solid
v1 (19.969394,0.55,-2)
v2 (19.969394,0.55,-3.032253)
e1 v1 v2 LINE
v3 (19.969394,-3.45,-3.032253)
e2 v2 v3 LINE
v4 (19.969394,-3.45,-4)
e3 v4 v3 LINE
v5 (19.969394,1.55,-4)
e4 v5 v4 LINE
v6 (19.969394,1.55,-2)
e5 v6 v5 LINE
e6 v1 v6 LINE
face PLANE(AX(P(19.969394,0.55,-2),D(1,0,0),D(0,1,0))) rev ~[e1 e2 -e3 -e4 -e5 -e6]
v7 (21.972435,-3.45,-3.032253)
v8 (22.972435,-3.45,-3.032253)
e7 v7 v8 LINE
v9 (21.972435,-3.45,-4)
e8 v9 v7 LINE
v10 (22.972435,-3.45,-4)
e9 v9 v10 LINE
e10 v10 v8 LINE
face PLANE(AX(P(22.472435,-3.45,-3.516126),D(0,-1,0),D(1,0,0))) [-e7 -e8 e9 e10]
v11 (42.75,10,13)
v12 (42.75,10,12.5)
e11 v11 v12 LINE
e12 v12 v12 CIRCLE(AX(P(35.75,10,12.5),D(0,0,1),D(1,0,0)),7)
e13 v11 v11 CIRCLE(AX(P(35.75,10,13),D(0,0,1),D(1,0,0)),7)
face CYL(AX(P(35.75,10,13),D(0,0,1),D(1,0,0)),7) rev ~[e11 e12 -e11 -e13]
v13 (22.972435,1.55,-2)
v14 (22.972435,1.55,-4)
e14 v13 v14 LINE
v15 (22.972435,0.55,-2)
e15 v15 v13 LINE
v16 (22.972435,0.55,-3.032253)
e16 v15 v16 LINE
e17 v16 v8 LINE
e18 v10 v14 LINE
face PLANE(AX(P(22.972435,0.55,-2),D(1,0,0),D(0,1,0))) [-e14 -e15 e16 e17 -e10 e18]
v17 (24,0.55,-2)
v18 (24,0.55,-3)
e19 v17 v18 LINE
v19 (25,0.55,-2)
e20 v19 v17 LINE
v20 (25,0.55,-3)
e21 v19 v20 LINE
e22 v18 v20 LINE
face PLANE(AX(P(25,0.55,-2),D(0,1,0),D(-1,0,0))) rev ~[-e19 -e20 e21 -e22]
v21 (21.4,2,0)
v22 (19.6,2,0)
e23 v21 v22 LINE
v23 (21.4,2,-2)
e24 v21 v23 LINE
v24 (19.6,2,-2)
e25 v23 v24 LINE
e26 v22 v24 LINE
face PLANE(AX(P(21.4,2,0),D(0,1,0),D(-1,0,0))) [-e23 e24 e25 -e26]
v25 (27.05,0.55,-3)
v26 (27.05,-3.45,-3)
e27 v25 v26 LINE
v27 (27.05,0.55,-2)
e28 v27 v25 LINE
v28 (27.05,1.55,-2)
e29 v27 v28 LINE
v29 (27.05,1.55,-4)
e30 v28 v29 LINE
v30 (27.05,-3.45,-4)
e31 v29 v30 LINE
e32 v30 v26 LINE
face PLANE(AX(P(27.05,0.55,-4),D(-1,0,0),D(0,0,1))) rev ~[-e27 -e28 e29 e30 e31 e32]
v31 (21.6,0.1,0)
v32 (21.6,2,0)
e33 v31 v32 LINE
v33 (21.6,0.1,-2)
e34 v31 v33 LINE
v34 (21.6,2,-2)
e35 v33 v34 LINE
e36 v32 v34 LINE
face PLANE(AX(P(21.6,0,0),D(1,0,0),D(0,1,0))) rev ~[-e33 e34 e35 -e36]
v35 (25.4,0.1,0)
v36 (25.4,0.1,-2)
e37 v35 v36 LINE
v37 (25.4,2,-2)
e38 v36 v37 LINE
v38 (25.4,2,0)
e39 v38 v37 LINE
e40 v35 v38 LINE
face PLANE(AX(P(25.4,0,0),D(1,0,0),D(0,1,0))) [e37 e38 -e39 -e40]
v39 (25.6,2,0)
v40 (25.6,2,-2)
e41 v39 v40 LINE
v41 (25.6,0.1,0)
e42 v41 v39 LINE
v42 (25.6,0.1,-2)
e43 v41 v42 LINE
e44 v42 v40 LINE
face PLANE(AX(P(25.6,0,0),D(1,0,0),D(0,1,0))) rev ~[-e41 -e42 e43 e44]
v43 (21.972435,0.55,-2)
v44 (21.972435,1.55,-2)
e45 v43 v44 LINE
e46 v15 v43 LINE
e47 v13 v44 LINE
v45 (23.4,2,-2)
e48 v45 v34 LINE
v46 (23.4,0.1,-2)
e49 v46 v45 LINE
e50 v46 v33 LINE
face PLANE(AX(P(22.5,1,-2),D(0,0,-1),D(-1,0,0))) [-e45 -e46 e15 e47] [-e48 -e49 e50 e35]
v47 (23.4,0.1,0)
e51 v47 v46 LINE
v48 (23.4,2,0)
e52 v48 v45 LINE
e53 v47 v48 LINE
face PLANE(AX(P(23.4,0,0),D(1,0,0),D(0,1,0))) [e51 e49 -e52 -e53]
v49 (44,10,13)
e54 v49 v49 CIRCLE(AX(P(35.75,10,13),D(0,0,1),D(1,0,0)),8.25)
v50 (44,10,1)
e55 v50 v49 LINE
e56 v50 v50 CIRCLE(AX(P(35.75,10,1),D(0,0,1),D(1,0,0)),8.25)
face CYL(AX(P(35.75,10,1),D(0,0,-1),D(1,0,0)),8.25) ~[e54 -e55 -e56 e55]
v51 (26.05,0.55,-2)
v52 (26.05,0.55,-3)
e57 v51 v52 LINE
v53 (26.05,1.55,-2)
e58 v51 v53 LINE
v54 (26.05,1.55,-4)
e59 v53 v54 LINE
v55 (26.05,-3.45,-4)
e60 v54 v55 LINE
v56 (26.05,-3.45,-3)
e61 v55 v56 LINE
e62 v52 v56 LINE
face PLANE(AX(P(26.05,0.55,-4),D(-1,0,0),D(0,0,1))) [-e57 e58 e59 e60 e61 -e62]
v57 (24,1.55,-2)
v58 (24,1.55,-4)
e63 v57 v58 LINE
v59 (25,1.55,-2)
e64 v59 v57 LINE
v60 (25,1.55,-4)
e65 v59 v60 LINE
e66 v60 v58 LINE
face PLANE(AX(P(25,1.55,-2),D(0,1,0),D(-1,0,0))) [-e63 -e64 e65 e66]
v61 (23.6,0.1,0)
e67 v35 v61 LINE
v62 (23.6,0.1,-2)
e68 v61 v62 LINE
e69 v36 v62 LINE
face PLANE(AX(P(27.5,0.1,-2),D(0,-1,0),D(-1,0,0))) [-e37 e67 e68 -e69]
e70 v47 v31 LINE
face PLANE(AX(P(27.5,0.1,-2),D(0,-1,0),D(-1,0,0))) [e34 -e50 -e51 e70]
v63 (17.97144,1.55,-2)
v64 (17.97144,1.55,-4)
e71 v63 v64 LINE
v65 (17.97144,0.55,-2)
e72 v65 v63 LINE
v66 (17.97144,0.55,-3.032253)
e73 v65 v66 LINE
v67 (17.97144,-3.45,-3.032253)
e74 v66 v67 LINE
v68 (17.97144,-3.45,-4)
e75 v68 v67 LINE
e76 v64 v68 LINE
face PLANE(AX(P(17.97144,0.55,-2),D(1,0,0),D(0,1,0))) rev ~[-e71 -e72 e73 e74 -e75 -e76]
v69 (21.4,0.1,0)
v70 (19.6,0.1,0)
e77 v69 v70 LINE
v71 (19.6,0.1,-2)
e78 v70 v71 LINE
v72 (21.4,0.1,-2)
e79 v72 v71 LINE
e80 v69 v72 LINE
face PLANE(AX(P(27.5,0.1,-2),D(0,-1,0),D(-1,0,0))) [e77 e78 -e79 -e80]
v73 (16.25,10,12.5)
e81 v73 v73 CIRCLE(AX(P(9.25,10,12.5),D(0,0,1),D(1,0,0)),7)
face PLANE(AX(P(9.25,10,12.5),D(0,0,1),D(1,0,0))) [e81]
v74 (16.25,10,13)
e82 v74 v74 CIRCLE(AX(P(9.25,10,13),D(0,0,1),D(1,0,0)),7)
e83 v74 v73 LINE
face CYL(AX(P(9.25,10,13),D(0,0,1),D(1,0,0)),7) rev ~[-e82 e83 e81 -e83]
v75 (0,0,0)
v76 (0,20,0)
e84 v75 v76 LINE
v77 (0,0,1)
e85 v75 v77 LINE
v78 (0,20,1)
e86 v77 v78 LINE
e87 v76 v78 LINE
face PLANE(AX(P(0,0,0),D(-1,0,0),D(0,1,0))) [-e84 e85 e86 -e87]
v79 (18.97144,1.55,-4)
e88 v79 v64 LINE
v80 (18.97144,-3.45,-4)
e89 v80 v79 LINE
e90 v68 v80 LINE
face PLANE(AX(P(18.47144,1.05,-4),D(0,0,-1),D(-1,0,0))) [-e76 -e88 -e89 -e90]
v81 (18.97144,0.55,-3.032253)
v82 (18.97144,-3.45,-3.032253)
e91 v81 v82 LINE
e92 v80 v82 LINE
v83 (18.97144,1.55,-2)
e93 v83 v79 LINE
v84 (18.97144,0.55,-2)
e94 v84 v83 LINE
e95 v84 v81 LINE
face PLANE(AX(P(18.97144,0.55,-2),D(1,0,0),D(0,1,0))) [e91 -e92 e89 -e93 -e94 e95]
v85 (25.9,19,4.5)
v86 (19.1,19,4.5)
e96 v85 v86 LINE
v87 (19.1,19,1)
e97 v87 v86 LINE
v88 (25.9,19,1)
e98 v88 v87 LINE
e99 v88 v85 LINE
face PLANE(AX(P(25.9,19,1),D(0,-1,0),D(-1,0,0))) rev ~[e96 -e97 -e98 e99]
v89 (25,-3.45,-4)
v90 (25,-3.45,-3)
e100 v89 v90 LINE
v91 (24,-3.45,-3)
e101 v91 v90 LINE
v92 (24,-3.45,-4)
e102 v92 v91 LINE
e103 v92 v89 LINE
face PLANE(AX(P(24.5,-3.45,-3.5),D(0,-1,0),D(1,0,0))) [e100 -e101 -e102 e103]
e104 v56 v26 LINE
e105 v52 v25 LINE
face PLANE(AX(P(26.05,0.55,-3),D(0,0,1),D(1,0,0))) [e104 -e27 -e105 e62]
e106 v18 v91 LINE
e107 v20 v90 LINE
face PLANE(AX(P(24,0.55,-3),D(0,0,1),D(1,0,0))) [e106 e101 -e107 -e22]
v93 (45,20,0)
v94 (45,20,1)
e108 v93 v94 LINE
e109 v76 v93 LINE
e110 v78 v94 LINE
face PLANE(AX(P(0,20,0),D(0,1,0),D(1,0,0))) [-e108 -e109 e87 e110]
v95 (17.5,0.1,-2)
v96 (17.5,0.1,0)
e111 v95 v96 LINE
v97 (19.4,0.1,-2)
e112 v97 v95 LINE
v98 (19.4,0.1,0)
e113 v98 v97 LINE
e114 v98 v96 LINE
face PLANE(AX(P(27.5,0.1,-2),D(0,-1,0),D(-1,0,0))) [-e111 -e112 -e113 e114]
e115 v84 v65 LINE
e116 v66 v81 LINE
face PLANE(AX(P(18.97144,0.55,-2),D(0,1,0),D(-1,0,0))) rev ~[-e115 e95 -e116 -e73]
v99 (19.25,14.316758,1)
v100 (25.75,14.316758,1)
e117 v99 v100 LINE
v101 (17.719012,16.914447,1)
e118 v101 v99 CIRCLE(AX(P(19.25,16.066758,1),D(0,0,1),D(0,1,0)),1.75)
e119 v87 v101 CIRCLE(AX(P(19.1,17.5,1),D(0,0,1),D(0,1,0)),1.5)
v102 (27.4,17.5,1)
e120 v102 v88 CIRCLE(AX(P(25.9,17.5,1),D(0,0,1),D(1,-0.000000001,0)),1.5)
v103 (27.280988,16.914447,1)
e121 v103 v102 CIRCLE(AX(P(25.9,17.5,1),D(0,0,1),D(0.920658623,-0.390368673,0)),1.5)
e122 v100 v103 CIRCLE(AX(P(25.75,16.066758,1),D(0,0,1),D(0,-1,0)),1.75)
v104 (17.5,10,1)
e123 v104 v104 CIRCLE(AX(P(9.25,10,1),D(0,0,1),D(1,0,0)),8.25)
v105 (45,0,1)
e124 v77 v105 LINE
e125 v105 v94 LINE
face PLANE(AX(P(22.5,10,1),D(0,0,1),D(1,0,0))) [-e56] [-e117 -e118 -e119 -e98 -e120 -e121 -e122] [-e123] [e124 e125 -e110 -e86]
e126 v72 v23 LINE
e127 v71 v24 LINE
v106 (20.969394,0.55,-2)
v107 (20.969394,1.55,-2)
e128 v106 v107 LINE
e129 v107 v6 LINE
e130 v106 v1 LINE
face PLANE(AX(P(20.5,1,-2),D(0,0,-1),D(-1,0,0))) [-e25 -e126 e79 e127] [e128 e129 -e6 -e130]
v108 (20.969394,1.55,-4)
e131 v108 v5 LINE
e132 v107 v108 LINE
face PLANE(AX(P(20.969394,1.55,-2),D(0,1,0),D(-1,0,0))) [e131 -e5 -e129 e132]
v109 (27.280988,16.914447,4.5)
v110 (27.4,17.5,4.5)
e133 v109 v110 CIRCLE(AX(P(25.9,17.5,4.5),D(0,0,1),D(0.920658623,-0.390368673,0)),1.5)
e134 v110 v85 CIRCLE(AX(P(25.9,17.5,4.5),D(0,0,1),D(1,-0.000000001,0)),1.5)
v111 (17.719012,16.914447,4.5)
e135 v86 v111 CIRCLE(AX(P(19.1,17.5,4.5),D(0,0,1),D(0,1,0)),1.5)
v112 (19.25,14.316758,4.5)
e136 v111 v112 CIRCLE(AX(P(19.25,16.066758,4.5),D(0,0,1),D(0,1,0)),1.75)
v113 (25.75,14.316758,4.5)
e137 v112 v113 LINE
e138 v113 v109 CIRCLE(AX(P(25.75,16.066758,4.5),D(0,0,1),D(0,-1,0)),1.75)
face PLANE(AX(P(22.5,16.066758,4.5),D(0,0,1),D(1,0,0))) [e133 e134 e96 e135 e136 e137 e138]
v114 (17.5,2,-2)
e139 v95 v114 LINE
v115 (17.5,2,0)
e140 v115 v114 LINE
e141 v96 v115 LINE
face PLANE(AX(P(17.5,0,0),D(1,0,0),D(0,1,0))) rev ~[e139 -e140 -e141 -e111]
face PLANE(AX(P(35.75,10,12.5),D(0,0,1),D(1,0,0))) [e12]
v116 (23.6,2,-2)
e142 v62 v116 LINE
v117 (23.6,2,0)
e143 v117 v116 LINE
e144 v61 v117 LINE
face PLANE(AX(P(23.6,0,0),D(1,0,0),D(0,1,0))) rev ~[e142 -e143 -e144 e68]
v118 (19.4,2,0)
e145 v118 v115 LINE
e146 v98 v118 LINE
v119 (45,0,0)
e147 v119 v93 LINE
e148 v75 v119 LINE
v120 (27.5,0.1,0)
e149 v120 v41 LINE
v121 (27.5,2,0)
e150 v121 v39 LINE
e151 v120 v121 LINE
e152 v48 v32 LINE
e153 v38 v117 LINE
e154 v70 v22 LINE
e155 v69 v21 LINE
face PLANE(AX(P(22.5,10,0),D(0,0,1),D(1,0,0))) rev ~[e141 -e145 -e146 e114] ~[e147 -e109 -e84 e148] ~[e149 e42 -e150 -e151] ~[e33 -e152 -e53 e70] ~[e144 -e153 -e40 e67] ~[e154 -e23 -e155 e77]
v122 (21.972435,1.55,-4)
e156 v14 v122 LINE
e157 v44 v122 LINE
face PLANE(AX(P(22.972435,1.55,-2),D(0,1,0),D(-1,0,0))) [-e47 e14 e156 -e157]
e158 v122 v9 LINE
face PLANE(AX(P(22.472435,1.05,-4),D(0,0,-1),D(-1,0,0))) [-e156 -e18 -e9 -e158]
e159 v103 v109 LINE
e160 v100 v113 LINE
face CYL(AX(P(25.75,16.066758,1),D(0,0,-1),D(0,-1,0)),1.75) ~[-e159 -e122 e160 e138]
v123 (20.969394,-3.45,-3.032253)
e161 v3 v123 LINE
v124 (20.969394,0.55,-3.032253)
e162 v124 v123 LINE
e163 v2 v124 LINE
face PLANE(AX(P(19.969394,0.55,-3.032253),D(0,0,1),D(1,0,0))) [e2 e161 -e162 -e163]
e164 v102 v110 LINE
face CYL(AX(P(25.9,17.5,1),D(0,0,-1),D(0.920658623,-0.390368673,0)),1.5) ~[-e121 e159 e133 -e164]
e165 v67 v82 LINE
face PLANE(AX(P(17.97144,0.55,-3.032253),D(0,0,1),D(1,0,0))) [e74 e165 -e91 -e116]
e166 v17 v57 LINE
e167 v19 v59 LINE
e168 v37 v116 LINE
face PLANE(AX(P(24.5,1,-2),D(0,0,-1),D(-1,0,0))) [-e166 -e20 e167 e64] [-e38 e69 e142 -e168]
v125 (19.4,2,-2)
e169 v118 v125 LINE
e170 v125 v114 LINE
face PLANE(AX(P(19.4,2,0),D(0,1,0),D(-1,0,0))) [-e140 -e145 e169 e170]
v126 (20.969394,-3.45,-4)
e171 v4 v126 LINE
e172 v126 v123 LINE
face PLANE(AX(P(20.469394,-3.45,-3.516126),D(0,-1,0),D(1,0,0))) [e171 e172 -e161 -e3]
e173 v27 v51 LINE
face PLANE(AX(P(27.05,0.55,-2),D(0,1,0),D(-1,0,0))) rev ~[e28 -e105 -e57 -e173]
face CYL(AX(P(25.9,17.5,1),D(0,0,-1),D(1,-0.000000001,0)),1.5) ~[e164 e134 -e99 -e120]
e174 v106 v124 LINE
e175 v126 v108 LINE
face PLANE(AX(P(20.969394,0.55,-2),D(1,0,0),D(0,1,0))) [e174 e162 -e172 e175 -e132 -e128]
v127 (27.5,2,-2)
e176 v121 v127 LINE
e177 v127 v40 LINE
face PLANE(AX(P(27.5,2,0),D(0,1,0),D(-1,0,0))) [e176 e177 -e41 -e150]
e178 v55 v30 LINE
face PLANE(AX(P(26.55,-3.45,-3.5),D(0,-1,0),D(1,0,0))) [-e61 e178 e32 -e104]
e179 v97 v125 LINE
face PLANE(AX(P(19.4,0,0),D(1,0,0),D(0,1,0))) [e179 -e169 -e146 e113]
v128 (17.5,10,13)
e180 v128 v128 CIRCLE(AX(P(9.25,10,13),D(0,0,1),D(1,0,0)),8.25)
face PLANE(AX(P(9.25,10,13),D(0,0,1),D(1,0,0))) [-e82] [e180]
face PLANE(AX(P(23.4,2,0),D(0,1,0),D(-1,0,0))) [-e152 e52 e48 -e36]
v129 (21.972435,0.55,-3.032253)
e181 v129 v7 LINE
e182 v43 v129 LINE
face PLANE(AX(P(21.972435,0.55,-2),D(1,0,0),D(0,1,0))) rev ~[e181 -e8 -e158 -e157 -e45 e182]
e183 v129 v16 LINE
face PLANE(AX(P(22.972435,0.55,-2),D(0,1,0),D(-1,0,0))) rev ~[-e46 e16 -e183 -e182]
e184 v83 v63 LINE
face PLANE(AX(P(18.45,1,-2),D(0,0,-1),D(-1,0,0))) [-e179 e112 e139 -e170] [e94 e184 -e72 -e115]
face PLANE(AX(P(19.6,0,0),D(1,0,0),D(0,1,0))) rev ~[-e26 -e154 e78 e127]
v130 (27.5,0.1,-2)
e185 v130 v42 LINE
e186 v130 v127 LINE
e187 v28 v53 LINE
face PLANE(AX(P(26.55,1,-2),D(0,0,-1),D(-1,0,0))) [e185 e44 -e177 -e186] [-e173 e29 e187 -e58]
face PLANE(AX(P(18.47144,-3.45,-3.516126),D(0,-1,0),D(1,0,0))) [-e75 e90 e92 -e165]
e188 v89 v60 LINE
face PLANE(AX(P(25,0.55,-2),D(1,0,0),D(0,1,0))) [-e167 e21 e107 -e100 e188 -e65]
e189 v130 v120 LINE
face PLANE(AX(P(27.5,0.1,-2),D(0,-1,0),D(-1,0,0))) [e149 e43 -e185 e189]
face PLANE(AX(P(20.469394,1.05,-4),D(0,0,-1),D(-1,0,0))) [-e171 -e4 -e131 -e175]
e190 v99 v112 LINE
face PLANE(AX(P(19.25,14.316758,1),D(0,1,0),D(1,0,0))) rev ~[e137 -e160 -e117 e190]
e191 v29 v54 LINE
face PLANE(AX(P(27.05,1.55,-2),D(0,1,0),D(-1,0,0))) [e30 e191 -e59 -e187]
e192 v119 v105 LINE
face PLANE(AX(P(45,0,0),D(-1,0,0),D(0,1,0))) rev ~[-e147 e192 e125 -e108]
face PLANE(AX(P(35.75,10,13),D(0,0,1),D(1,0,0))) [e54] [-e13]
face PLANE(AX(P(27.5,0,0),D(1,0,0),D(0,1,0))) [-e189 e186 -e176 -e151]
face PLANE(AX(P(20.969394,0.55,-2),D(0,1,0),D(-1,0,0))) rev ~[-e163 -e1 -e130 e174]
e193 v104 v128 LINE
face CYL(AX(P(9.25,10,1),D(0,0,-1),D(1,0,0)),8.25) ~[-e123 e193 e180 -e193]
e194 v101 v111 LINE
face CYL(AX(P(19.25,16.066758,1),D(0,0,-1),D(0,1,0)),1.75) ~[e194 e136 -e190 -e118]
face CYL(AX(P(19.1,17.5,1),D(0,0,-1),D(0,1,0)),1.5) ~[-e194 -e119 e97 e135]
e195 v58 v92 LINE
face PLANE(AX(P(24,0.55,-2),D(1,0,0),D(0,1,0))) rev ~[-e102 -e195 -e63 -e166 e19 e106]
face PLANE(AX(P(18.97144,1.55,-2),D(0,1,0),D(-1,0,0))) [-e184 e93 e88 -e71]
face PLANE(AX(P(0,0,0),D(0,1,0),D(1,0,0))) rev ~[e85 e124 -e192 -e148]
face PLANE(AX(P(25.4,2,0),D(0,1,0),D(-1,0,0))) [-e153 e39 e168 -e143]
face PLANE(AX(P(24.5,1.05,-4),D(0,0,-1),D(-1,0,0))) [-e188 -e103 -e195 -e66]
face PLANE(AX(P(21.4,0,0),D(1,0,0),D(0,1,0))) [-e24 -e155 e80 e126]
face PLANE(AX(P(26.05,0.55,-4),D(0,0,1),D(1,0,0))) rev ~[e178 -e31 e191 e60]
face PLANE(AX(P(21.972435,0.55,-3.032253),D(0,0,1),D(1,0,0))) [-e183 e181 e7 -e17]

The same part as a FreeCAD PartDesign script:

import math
import FreeCAD as App
import Part
import Sketcher
Q = App.Units.Quantity


def add_polygon(sketch, points):
    """Adds a closed chain of lines whose ends are joined by coincident constraints."""
    first, n = sketch.GeometryCount, len(points)
    for a, b in zip(points, points[1:] + points[:1]):
        sketch.addGeometry(Part.LineSegment(App.Vector(*a, 0), App.Vector(*b, 0)), False)
    for i in range(n):
        sketch.addConstraint(Sketcher.Constraint("Coincident", first + i, 2, first + (i + 1) % n, 1))

doc = App.newDocument("Part")
params = doc.addObject("Spreadsheet::Sheet", "Params")
for row, (alias, value) in enumerate([
    ("sketch1_width", "45 mm"),
    ("sketch1_height", "20 mm"),
    ("pad1_length", "1 mm"),
    ("sketch2_diameter", "16.5 mm"),
    ("pad2_length", "12 mm"),
    ("sketch3_diameter", "14 mm"),
    ("pocket1_length", "0.5 mm"),
    ("sketch4_radius", "1.75 mm"),
    ("sketch4_width", "6.5 mm"),
    ("pad3_length", "3.5 mm"),
    ("sketch5_height", "2 mm"),
    ("sketch5_width", "1.9 mm"),
    ("sketch5_width2", "1.8 mm"),
    ("pad4_length", "2 mm"),
    ("sketch6_width", "10 mm"),
    ("sketch6_height", "0.1 mm"),
    ("pocket2_length", "2 mm"),
    ("sketch7_width", "1 mm"),
    ("pad5_length", "2 mm"),
    ("sketch8_width", "1 mm"),
    ("pad6_length", "4 mm"),
    ("sketch9_radius", "1.5 mm"),
    ("sketch9_width", "6.8 mm"),
    ("pad7_length", "3.5 mm"),
], start=1):
    params.set(f"A{row}", alias)
    params.set(f"B{row}", "=" + value)
    params.setAlias(f"B{row}", alias)

body = doc.addObject("PartDesign::Body", "Body")

sketch1 = body.newObject("Sketcher::SketchObject", "Sketch")
sketch1.AttachmentSupport = (doc.getObject("XY_Plane"), [""])
sketch1.MapMode = "FlatFace"
add_polygon(sketch1, [(0, 20), (0, 0), (45, 0), (45, 20)])
sketch1.addConstraint(Sketcher.Constraint("Vertical", 0))
sketch1.addConstraint(Sketcher.Constraint("Horizontal", 1))
sketch1.addConstraint(Sketcher.Constraint("Vertical", 2))
sketch1.addConstraint(Sketcher.Constraint("Horizontal", 3))
sketch1.addConstraint(Sketcher.Constraint("Coincident", 0, 2, -1, 1))
sketch1.addConstraint(Sketcher.Constraint("DistanceX", 1, 1, 1, 2, Q("45 mm")))
sketch1.addConstraint(Sketcher.Constraint("DistanceY", 0, 2, 0, 1, Q("20 mm")))
sketch1.setExpression("Constraints[9]", "Params.sketch1_width")
sketch1.setExpression("Constraints[10]", "Params.sketch1_height")
pad1 = body.newObject("PartDesign::Pad", "Pad")
pad1.Profile = sketch1
pad1.setExpression("Length", "Params.pad1_length")

sketch2 = body.newObject("Sketcher::SketchObject", "Sketch001")
sketch2.AttachmentSupport = (doc.getObject("XY_Plane"), [""])
sketch2.MapMode = "FlatFace"
sketch2.AttachmentOffset = App.Placement(App.Vector(0, 0, 1), App.Rotation())
sketch2.addGeometry(Part.Circle(App.Vector(9.25, 10, 0), App.Vector(0, 0, 1), 8.25), False)
sketch2.addGeometry(Part.Circle(App.Vector(35.75, 10, 0), App.Vector(0, 0, 1), 8.25), False)
sketch2.addConstraint(Sketcher.Constraint("Equal", 0, 1))
sketch2.addConstraint(Sketcher.Constraint("Horizontal", 0, 3, 1, 3))
sketch2.addConstraint(Sketcher.Constraint("Diameter", 0, Q("16.5 mm")))
sketch2.addConstraint(Sketcher.Constraint("DistanceY", -1, 1, 0, 3, Q("10 mm")))
sketch2.addConstraint(Sketcher.Constraint("DistanceX", 0, 3, 1, 3, Q("26.5 mm")))
sketch2.addConstraint(Sketcher.Constraint("DistanceX", -1, 1, 0, 3, Q("9.25 mm")))
sketch2.setExpression("Constraints[2]", "Params.sketch2_diameter")
pad2 = body.newObject("PartDesign::Pad", "Pad001")
pad2.Profile = sketch2
pad2.setExpression("Length", "Params.pad2_length")

sketch3 = body.newObject("Sketcher::SketchObject", "Sketch002")
sketch3.AttachmentSupport = (doc.getObject("XY_Plane"), [""])
sketch3.MapMode = "FlatFace"
sketch3.AttachmentOffset = App.Placement(App.Vector(0, 0, 13), App.Rotation())
sketch3.addGeometry(Part.Circle(App.Vector(9.25, 10, 0), App.Vector(0, 0, 1), 7), False)
sketch3.addGeometry(Part.Circle(App.Vector(35.75, 10, 0), App.Vector(0, 0, 1), 7), False)
sketch3.addConstraint(Sketcher.Constraint("Equal", 0, 1))
sketch3.addConstraint(Sketcher.Constraint("Horizontal", 0, 3, 1, 3))
sketch3.addConstraint(Sketcher.Constraint("Diameter", 0, Q("14 mm")))
sketch3.addConstraint(Sketcher.Constraint("DistanceY", -1, 1, 0, 3, Q("10 mm")))
sketch3.addConstraint(Sketcher.Constraint("DistanceX", 0, 3, 1, 3, Q("26.5 mm")))
sketch3.addConstraint(Sketcher.Constraint("DistanceX", -1, 1, 0, 3, Q("9.25 mm")))
sketch3.setExpression("Constraints[2]", "Params.sketch3_diameter")
pocket1 = body.newObject("PartDesign::Pocket", "Pocket")
pocket1.Profile = sketch3
pocket1.setExpression("Length", "Params.pocket1_length")

sketch4 = body.newObject("Sketcher::SketchObject", "Sketch003")
sketch4.AttachmentSupport = (doc.getObject("XY_Plane"), [""])
sketch4.MapMode = "FlatFace"
sketch4.AttachmentOffset = App.Placement(App.Vector(0, 0, 1), App.Rotation())
sketch4.addGeometry(Part.LineSegment(App.Vector(25.75, 17.816758, 0), App.Vector(19.25, 17.816758, 0)), False)
sketch4.addGeometry(Part.ArcOfCircle(Part.Circle(App.Vector(19.25, 16.066758, 0), App.Vector(0, 0, 1), 1.75), math.radians(90), math.radians(270)), False)
sketch4.addGeometry(Part.LineSegment(App.Vector(19.25, 14.316758, 0), App.Vector(25.75, 14.316758, 0)), False)
sketch4.addGeometry(Part.ArcOfCircle(Part.Circle(App.Vector(25.75, 16.066758, 0), App.Vector(0, 0, 1), 1.75), math.radians(-90), math.radians(90)), False)
sketch4.addConstraint(Sketcher.Constraint("Tangent", 0, 2, 1, 1))
sketch4.addConstraint(Sketcher.Constraint("Tangent", 1, 2, 2, 1))
sketch4.addConstraint(Sketcher.Constraint("Tangent", 2, 2, 3, 1))
sketch4.addConstraint(Sketcher.Constraint("Tangent", 3, 2, 0, 1))
sketch4.addConstraint(Sketcher.Constraint("Horizontal", 0))
sketch4.addConstraint(Sketcher.Constraint("Horizontal", 2))
sketch4.addConstraint(Sketcher.Constraint("Radius", 1, Q("1.75 mm")))
sketch4.addConstraint(Sketcher.Constraint("DistanceX", 0, 2, 0, 1, Q("6.5 mm")))
sketch4.addConstraint(Sketcher.Constraint("DistanceX", -1, 1, 1, 3, Q("19.25 mm")))
sketch4.addConstraint(Sketcher.Constraint("DistanceY", -1, 1, 1, 3, Q("16.066758 mm")))
sketch4.setExpression("Constraints[6]", "Params.sketch4_radius")
sketch4.setExpression("Constraints[7]", "Params.sketch4_width")
pad3 = body.newObject("PartDesign::Pad", "Pad002")
pad3.Profile = sketch4
pad3.setExpression("Length", "Params.pad3_length")

sketch5 = body.newObject("Sketcher::SketchObject", "Sketch004")
sketch5.AttachmentSupport = (doc.getObject("XY_Plane"), [""])
sketch5.MapMode = "FlatFace"
add_polygon(sketch5, [(27.5, 2), (27.5, 0), (25.6, 0), (25.6, 2)])
add_polygon(sketch5, [(25.4, 2), (25.4, 0), (23.6, 0), (23.6, 2)])
add_polygon(sketch5, [(23.4, 2), (23.4, 0), (21.6, 0), (21.6, 2)])
add_polygon(sketch5, [(21.4, 2), (21.4, 0), (19.6, 0), (19.6, 2)])
add_polygon(sketch5, [(19.4, 2), (19.4, 0), (17.5, 0), (17.5, 2)])
sketch5.addConstraint(Sketcher.Constraint("Vertical", 0))
sketch5.addConstraint(Sketcher.Constraint("Horizontal", 1))
sketch5.addConstraint(Sketcher.Constraint("Vertical", 2))
sketch5.addConstraint(Sketcher.Constraint("Horizontal", 3))
sketch5.addConstraint(Sketcher.Constraint("Vertical", 4))
sketch5.addConstraint(Sketcher.Constraint("Horizontal", 5))
sketch5.addConstraint(Sketcher.Constraint("Vertical", 6))
sketch5.addConstraint(Sketcher.Constraint("Horizontal", 7))
sketch5.addConstraint(Sketcher.Constraint("Vertical", 8))
sketch5.addConstraint(Sketcher.Constraint("Horizontal", 9))
sketch5.addConstraint(Sketcher.Constraint("Vertical", 10))
sketch5.addConstraint(Sketcher.Constraint("Horizontal", 11))
sketch5.addConstraint(Sketcher.Constraint("Vertical", 12))
sketch5.addConstraint(Sketcher.Constraint("Horizontal", 13))
sketch5.addConstraint(Sketcher.Constraint("Vertical", 14))
sketch5.addConstraint(Sketcher.Constraint("Horizontal", 15))
sketch5.addConstraint(Sketcher.Constraint("Vertical", 16))
sketch5.addConstraint(Sketcher.Constraint("Horizontal", 17))
sketch5.addConstraint(Sketcher.Constraint("Vertical", 18))
sketch5.addConstraint(Sketcher.Constraint("Horizontal", 19))
sketch5.addConstraint(Sketcher.Constraint("PointOnObject", 0, 2, -1))
sketch5.addConstraint(Sketcher.Constraint("PointOnObject", 4, 2, -1))
sketch5.addConstraint(Sketcher.Constraint("PointOnObject", 8, 2, -1))
sketch5.addConstraint(Sketcher.Constraint("PointOnObject", 12, 2, -1))
sketch5.addConstraint(Sketcher.Constraint("PointOnObject", 16, 2, -1))
sketch5.addConstraint(Sketcher.Constraint("Horizontal", 3, 2, 6, 2))
sketch5.addConstraint(Sketcher.Constraint("Horizontal", 7, 2, 10, 2))
sketch5.addConstraint(Sketcher.Constraint("Horizontal", 11, 2, 14, 2))
sketch5.addConstraint(Sketcher.Constraint("Horizontal", 15, 2, 18, 2))
sketch5.addConstraint(Sketcher.Constraint("Equal", 7, 9))
sketch5.addConstraint(Sketcher.Constraint("Equal", 11, 13))
sketch5.addConstraint(Sketcher.Constraint("Equal", 3, 17))
sketch5.addConstraint(Sketcher.Constraint("DistanceY", 0, 2, 0, 1, Q("2 mm")))
sketch5.addConstraint(Sketcher.Constraint("DistanceX", 1, 2, 1, 1, Q("1.9 mm")))
sketch5.addConstraint(Sketcher.Constraint("DistanceX", 5, 2, 5, 1, Q("1.8 mm")))
sketch5.addConstraint(Sketcher.Constraint("DistanceX", 5, 2, 1, 2, Q("2 mm")))
sketch5.addConstraint(Sketcher.Constraint("DistanceX", 8, 2, 4, 2, Q("2 mm")))
sketch5.addConstraint(Sketcher.Constraint("DistanceX", 12, 2, 8, 2, Q("2 mm")))
sketch5.addConstraint(Sketcher.Constraint("DistanceX", 16, 2, 12, 2, Q("2 mm")))
sketch5.addConstraint(Sketcher.Constraint("DistanceX", -1, 1, 0, 2, Q("27.5 mm")))
sketch5.setExpression("Constraints[52]", "Params.sketch5_height")
sketch5.setExpression("Constraints[53]", "Params.sketch5_width")
sketch5.setExpression("Constraints[54]", "Params.sketch5_width2")
pad4 = body.newObject("PartDesign::Pad", "Pad003")
pad4.Profile = sketch5
pad4.setExpression("Length", "Params.pad4_length")
pad4.Reversed = True

sketch6 = body.newObject("Sketcher::SketchObject", "Sketch005")
sketch6.AttachmentSupport = (doc.getObject("XY_Plane"), [""])
sketch6.MapMode = "FlatFace"
sketch6.AttachmentOffset = App.Placement(App.Vector(0, 0, -2), App.Rotation())
add_polygon(sketch6, [(27.5, 0.1), (27.5, 0), (17.5, 0), (17.5, 0.1)])
sketch6.addConstraint(Sketcher.Constraint("Vertical", 0))
sketch6.addConstraint(Sketcher.Constraint("Horizontal", 1))
sketch6.addConstraint(Sketcher.Constraint("Vertical", 2))
sketch6.addConstraint(Sketcher.Constraint("Horizontal", 3))
sketch6.addConstraint(Sketcher.Constraint("PointOnObject", 0, 2, -1))
sketch6.addConstraint(Sketcher.Constraint("DistanceX", 1, 2, 1, 1, Q("10 mm")))
sketch6.addConstraint(Sketcher.Constraint("DistanceY", 0, 2, 0, 1, Q("0.1 mm")))
sketch6.addConstraint(Sketcher.Constraint("DistanceX", -1, 1, 0, 2, Q("27.5 mm")))
sketch6.setExpression("Constraints[9]", "Params.sketch6_width")
sketch6.setExpression("Constraints[10]", "Params.sketch6_height")
pocket2 = body.newObject("PartDesign::Pocket", "Pocket001")
pocket2.Profile = sketch6
pocket2.setExpression("Length", "Params.pocket2_length")
pocket2.Reversed = True

sketch7 = body.newObject("Sketcher::SketchObject", "Sketch006")
sketch7.AttachmentSupport = (doc.getObject("XY_Plane"), [""])
sketch7.MapMode = "FlatFace"
sketch7.AttachmentOffset = App.Placement(App.Vector(0, 0, -2), App.Rotation())
add_polygon(sketch7, [(25, 1.55), (25, 0.55), (24, 0.55), (24, 1.55)])
add_polygon(sketch7, [(27.05, 1.55), (27.05, 0.55), (26.05, 0.55), (26.05, 1.55)])
add_polygon(sketch7, [(22.972435, 1.55), (22.972435, 0.55), (21.972435, 0.55), (21.972435, 1.55)])
add_polygon(sketch7, [(20.969394, 1.55), (20.969394, 0.55), (19.969394, 0.55), (19.969394, 1.55)])
add_polygon(sketch7, [(18.97144, 1.55), (18.97144, 0.55), (17.97144, 0.55), (17.97144, 1.55)])
sketch7.addConstraint(Sketcher.Constraint("Vertical", 0))
sketch7.addConstraint(Sketcher.Constraint("Horizontal", 1))
sketch7.addConstraint(Sketcher.Constraint("Vertical", 2))
sketch7.addConstraint(Sketcher.Constraint("Horizontal", 3))
sketch7.addConstraint(Sketcher.Constraint("Vertical", 4))
sketch7.addConstraint(Sketcher.Constraint("Horizontal", 5))
sketch7.addConstraint(Sketcher.Constraint("Vertical", 6))
sketch7.addConstraint(Sketcher.Constraint("Horizontal", 7))
sketch7.addConstraint(Sketcher.Constraint("Vertical", 8))
sketch7.addConstraint(Sketcher.Constraint("Horizontal", 9))
sketch7.addConstraint(Sketcher.Constraint("Vertical", 10))
sketch7.addConstraint(Sketcher.Constraint("Horizontal", 11))
sketch7.addConstraint(Sketcher.Constraint("Vertical", 12))
sketch7.addConstraint(Sketcher.Constraint("Horizontal", 13))
sketch7.addConstraint(Sketcher.Constraint("Vertical", 14))
sketch7.addConstraint(Sketcher.Constraint("Horizontal", 15))
sketch7.addConstraint(Sketcher.Constraint("Vertical", 16))
sketch7.addConstraint(Sketcher.Constraint("Horizontal", 17))
sketch7.addConstraint(Sketcher.Constraint("Vertical", 18))
sketch7.addConstraint(Sketcher.Constraint("Horizontal", 19))
sketch7.addConstraint(Sketcher.Constraint("Horizontal", 1, 2, 4, 2))
sketch7.addConstraint(Sketcher.Constraint("Horizontal", 3, 2, 6, 2))
sketch7.addConstraint(Sketcher.Constraint("Horizontal", 5, 2, 8, 2))
sketch7.addConstraint(Sketcher.Constraint("Horizontal", 7, 2, 10, 2))
sketch7.addConstraint(Sketcher.Constraint("Horizontal", 9, 2, 12, 2))
sketch7.addConstraint(Sketcher.Constraint("Horizontal", 11, 2, 14, 2))
sketch7.addConstraint(Sketcher.Constraint("Horizontal", 13, 2, 16, 2))
sketch7.addConstraint(Sketcher.Constraint("Horizontal", 15, 2, 18, 2))
sketch7.addConstraint(Sketcher.Constraint("Equal", 3, 5))
sketch7.addConstraint(Sketcher.Constraint("Equal", 7, 9))
sketch7.addConstraint(Sketcher.Constraint("Equal", 11, 13))
sketch7.addConstraint(Sketcher.Constraint("Equal", 15, 17))
sketch7.addConstraint(Sketcher.Constraint("Equal", 19, 0))
sketch7.addConstraint(Sketcher.Constraint("DistanceX", 1, 2, 1, 1, Q("1 mm")))
sketch7.addConstraint(Sketcher.Constraint("DistanceX", -1, 1, 0, 2, Q("25 mm")))
sketch7.addConstraint(Sketcher.Constraint("DistanceY", -1, 1, 0, 2, Q("0.55 mm")))
sketch7.addConstraint(Sketcher.Constraint("DistanceX", -1, 1, 4, 2, Q("27.05 mm")))
sketch7.addConstraint(Sketcher.Constraint("DistanceX", -1, 1, 16, 2, Q("18.97144 mm")))
sketch7.addConstraint(Sketcher.Constraint("DistanceX", 12, 2, 9, 2, Q("1.003041 mm")))
sketch7.addConstraint(Sketcher.Constraint("DistanceX", -1, 1, 8, 2, Q("22.972435 mm")))
sketch7.setExpression("Constraints[53]", "Params.sketch7_width")
pad5 = body.newObject("PartDesign::Pad", "Pad004")
pad5.Profile = sketch7
pad5.setExpression("Length", "Params.pad5_length")
pad5.Reversed = True

sketch8 = body.newObject("Sketcher::SketchObject", "Sketch007")
sketch8.AttachmentSupport = (doc.getObject("XZ_Plane"), [""])
sketch8.MapMode = "FlatFace"
sketch8.AttachmentOffset = App.Placement(App.Vector(0, 0, -0.55), App.Rotation())
add_polygon(sketch8, [(26.05, -3), (26.05, -4), (27.05, -4), (27.05, -3)])
add_polygon(sketch8, [(24, -3), (24, -4), (25, -4), (25, -3)])
add_polygon(sketch8, [(21.972435, -3.032253), (21.972435, -4), (22.972435, -4), (22.972435, -3.032253)])
add_polygon(sketch8, [(19.969394, -3.032253), (19.969394, -4), (20.969394, -4), (20.969394, -3.032253)])
add_polygon(sketch8, [(17.97144, -3.032253), (17.97144, -4), (18.97144, -4), (18.97144, -3.032253)])
sketch8.addConstraint(Sketcher.Constraint("Vertical", 0))
sketch8.addConstraint(Sketcher.Constraint("Horizontal", 1))
sketch8.addConstraint(Sketcher.Constraint("Vertical", 2))
sketch8.addConstraint(Sketcher.Constraint("Horizontal", 3))
sketch8.addConstraint(Sketcher.Constraint("Vertical", 4))
sketch8.addConstraint(Sketcher.Constraint("Horizontal", 5))
sketch8.addConstraint(Sketcher.Constraint("Vertical", 6))
sketch8.addConstraint(Sketcher.Constraint("Horizontal", 7))
sketch8.addConstraint(Sketcher.Constraint("Vertical", 8))
sketch8.addConstraint(Sketcher.Constraint("Horizontal", 9))
sketch8.addConstraint(Sketcher.Constraint("Vertical", 10))
sketch8.addConstraint(Sketcher.Constraint("Horizontal", 11))
sketch8.addConstraint(Sketcher.Constraint("Vertical", 12))
sketch8.addConstraint(Sketcher.Constraint("Horizontal", 13))
sketch8.addConstraint(Sketcher.Constraint("Vertical", 14))
sketch8.addConstraint(Sketcher.Constraint("Horizontal", 15))
sketch8.addConstraint(Sketcher.Constraint("Vertical", 16))
sketch8.addConstraint(Sketcher.Constraint("Horizontal", 17))
sketch8.addConstraint(Sketcher.Constraint("Vertical", 18))
sketch8.addConstraint(Sketcher.Constraint("Horizontal", 19))
sketch8.addConstraint(Sketcher.Constraint("Horizontal", 1, 2, 4, 2))
sketch8.addConstraint(Sketcher.Constraint("Horizontal", 3, 2, 6, 2))
sketch8.addConstraint(Sketcher.Constraint("Horizontal", 5, 2, 8, 2))
sketch8.addConstraint(Sketcher.Constraint("Horizontal", 9, 2, 12, 2))
sketch8.addConstraint(Sketcher.Constraint("Horizontal", 11, 2, 14, 2))
sketch8.addConstraint(Sketcher.Constraint("Horizontal", 13, 2, 16, 2))
sketch8.addConstraint(Sketcher.Constraint("Horizontal", 15, 2, 18, 2))
sketch8.addConstraint(Sketcher.Constraint("Equal", 3, 5))
sketch8.addConstraint(Sketcher.Constraint("Equal", 7, 9))
sketch8.addConstraint(Sketcher.Constraint("Equal", 11, 13))
sketch8.addConstraint(Sketcher.Constraint("Equal", 15, 17))
sketch8.addConstraint(Sketcher.Constraint("Equal", 19, 0))
sketch8.addConstraint(Sketcher.Constraint("DistanceX", 1, 1, 1, 2, Q("1 mm")))
sketch8.addConstraint(Sketcher.Constraint("DistanceY", 0, 2, -1, 1, Q("4 mm")))
sketch8.addConstraint(Sketcher.Constraint("DistanceX", -1, 1, 4, 2, Q("24 mm")))
sketch8.addConstraint(Sketcher.Constraint("DistanceX", -1, 1, 0, 2, Q("26.05 mm")))
sketch8.addConstraint(Sketcher.Constraint("DistanceY", 8, 2, 8, 1, Q("0.967747 mm")))
sketch8.addConstraint(Sketcher.Constraint("DistanceX", -1, 1, 16, 2, Q("17.97144 mm")))
sketch8.addConstraint(Sketcher.Constraint("DistanceX", 12, 2, 8, 2, Q("2.003041 mm")))
sketch8.addConstraint(Sketcher.Constraint("DistanceX", -1, 1, 8, 2, Q("21.972435 mm")))
sketch8.setExpression("Constraints[52]", "Params.sketch8_width")
pad6 = body.newObject("PartDesign::Pad", "Pad005")
pad6.Profile = sketch8
pad6.setExpression("Length", "Params.pad6_length")

sketch9 = body.newObject("Sketcher::SketchObject", "Sketch008")
sketch9.AttachmentSupport = (doc.getObject("XY_Plane"), [""])
sketch9.MapMode = "FlatFace"
sketch9.AttachmentOffset = App.Placement(App.Vector(0, 0, 1), App.Rotation())
sketch9.addGeometry(Part.ArcOfCircle(Part.Circle(App.Vector(25.9, 17.5, 0), App.Vector(0, 0, 1), 1.5), math.radians(-90), math.radians(-22.977441)), False)
sketch9.addGeometry(Part.ArcOfCircle(Part.Circle(App.Vector(25.9, 17.5, 0), App.Vector(0, 0, 1), 1.5), math.radians(-22.977441), math.radians(0)), False)
sketch9.addGeometry(Part.ArcOfCircle(Part.Circle(App.Vector(25.9, 17.5, 0), App.Vector(0, 0, 1), 1.5), math.radians(0), math.radians(90)), False)
sketch9.addGeometry(Part.LineSegment(App.Vector(25.9, 19, 0), App.Vector(19.1, 19, 0)), False)
sketch9.addGeometry(Part.ArcOfCircle(Part.Circle(App.Vector(19.1, 17.5, 0), App.Vector(0, 0, 1), 1.5), math.radians(90), math.radians(202.977441)), False)
sketch9.addGeometry(Part.ArcOfCircle(Part.Circle(App.Vector(19.1, 17.5, 0), App.Vector(0, 0, 1), 1.5), math.radians(-157.022559), math.radians(-90)), False)
sketch9.addGeometry(Part.LineSegment(App.Vector(19.1, 16, 0), App.Vector(25.9, 16, 0)), False)
sketch9.addConstraint(Sketcher.Constraint("Tangent", 0, 2, 1, 1))
sketch9.addConstraint(Sketcher.Constraint("Tangent", 1, 2, 2, 1))
sketch9.addConstraint(Sketcher.Constraint("Tangent", 2, 2, 3, 1))
sketch9.addConstraint(Sketcher.Constraint("Tangent", 3, 2, 4, 1))
sketch9.addConstraint(Sketcher.Constraint("Tangent", 4, 2, 5, 1))
sketch9.addConstraint(Sketcher.Constraint("Tangent", 5, 2, 6, 1))
sketch9.addConstraint(Sketcher.Constraint("Tangent", 6, 2, 0, 1))
sketch9.addConstraint(Sketcher.Constraint("Horizontal", 3))
sketch9.addConstraint(Sketcher.Constraint("Horizontal", 6))
sketch9.addConstraint(Sketcher.Constraint("Coincident", 2, 3, 0, 3))
sketch9.addConstraint(Sketcher.Constraint("Equal", 2, 4))
sketch9.addConstraint(Sketcher.Constraint("Horizontal", 5, 3, 1, 2))
sketch9.addConstraint(Sketcher.Constraint("Horizontal", 0, 2, 4, 2))
sketch9.addConstraint(Sketcher.Constraint("Radius", 0, Q("1.5 mm")))
sketch9.addConstraint(Sketcher.Constraint("DistanceX", 3, 2, 3, 1, Q("6.8 mm")))
sketch9.addConstraint(Sketcher.Constraint("DistanceY", -1, 1, 2, 2, Q("19 mm")))
sketch9.addConstraint(Sketcher.Constraint("DistanceX", -1, 1, 0, 3, Q("25.9 mm")))
sketch9.addConstraint(Sketcher.Constraint("DistanceX", -1, 1, 0, 2, Q("27.280988 mm")))
sketch9.setExpression("Constraints[13]", "Params.sketch9_radius")
sketch9.setExpression("Constraints[14]", "Params.sketch9_width")
pad7 = body.newObject("PartDesign::Pad", "Pad006")
pad7.Profile = sketch9
pad7.setExpression("Length", "Params.pad7_length")

doc.recompute()
